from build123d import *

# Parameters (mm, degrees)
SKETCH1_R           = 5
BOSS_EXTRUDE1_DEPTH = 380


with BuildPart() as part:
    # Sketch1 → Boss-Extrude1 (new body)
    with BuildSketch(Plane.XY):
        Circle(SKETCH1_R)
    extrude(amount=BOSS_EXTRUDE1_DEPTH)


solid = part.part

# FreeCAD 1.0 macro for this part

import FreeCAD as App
import Part
import Sketcher

V = App.Vector

doc = App.newDocument("Part")
body = doc.addObject("PartDesign::Body", "Body")

# Sketch on XY plane
sketch1 = body.newObject("Sketcher::SketchObject", "Sketch")
sketch1.AttachmentSupport = (doc.getObject("XY_Plane"), [""])
sketch1.MapMode = "FlatFace"
sketch1.addGeometry(Part.Circle(V(0, 0, 0), V(0, 0, 1), 5), False)
sketch1.addConstraint(Sketcher.Constraint("Coincident", 0, 3, -1, 1))
sketch1.addConstraint(Sketcher.Constraint("Diameter", 0, 10.0))
pad1 = body.newObject("PartDesign::Pad", "Pad")
pad1.Profile = sketch1
pad1.Length = 380

doc.recompute()
